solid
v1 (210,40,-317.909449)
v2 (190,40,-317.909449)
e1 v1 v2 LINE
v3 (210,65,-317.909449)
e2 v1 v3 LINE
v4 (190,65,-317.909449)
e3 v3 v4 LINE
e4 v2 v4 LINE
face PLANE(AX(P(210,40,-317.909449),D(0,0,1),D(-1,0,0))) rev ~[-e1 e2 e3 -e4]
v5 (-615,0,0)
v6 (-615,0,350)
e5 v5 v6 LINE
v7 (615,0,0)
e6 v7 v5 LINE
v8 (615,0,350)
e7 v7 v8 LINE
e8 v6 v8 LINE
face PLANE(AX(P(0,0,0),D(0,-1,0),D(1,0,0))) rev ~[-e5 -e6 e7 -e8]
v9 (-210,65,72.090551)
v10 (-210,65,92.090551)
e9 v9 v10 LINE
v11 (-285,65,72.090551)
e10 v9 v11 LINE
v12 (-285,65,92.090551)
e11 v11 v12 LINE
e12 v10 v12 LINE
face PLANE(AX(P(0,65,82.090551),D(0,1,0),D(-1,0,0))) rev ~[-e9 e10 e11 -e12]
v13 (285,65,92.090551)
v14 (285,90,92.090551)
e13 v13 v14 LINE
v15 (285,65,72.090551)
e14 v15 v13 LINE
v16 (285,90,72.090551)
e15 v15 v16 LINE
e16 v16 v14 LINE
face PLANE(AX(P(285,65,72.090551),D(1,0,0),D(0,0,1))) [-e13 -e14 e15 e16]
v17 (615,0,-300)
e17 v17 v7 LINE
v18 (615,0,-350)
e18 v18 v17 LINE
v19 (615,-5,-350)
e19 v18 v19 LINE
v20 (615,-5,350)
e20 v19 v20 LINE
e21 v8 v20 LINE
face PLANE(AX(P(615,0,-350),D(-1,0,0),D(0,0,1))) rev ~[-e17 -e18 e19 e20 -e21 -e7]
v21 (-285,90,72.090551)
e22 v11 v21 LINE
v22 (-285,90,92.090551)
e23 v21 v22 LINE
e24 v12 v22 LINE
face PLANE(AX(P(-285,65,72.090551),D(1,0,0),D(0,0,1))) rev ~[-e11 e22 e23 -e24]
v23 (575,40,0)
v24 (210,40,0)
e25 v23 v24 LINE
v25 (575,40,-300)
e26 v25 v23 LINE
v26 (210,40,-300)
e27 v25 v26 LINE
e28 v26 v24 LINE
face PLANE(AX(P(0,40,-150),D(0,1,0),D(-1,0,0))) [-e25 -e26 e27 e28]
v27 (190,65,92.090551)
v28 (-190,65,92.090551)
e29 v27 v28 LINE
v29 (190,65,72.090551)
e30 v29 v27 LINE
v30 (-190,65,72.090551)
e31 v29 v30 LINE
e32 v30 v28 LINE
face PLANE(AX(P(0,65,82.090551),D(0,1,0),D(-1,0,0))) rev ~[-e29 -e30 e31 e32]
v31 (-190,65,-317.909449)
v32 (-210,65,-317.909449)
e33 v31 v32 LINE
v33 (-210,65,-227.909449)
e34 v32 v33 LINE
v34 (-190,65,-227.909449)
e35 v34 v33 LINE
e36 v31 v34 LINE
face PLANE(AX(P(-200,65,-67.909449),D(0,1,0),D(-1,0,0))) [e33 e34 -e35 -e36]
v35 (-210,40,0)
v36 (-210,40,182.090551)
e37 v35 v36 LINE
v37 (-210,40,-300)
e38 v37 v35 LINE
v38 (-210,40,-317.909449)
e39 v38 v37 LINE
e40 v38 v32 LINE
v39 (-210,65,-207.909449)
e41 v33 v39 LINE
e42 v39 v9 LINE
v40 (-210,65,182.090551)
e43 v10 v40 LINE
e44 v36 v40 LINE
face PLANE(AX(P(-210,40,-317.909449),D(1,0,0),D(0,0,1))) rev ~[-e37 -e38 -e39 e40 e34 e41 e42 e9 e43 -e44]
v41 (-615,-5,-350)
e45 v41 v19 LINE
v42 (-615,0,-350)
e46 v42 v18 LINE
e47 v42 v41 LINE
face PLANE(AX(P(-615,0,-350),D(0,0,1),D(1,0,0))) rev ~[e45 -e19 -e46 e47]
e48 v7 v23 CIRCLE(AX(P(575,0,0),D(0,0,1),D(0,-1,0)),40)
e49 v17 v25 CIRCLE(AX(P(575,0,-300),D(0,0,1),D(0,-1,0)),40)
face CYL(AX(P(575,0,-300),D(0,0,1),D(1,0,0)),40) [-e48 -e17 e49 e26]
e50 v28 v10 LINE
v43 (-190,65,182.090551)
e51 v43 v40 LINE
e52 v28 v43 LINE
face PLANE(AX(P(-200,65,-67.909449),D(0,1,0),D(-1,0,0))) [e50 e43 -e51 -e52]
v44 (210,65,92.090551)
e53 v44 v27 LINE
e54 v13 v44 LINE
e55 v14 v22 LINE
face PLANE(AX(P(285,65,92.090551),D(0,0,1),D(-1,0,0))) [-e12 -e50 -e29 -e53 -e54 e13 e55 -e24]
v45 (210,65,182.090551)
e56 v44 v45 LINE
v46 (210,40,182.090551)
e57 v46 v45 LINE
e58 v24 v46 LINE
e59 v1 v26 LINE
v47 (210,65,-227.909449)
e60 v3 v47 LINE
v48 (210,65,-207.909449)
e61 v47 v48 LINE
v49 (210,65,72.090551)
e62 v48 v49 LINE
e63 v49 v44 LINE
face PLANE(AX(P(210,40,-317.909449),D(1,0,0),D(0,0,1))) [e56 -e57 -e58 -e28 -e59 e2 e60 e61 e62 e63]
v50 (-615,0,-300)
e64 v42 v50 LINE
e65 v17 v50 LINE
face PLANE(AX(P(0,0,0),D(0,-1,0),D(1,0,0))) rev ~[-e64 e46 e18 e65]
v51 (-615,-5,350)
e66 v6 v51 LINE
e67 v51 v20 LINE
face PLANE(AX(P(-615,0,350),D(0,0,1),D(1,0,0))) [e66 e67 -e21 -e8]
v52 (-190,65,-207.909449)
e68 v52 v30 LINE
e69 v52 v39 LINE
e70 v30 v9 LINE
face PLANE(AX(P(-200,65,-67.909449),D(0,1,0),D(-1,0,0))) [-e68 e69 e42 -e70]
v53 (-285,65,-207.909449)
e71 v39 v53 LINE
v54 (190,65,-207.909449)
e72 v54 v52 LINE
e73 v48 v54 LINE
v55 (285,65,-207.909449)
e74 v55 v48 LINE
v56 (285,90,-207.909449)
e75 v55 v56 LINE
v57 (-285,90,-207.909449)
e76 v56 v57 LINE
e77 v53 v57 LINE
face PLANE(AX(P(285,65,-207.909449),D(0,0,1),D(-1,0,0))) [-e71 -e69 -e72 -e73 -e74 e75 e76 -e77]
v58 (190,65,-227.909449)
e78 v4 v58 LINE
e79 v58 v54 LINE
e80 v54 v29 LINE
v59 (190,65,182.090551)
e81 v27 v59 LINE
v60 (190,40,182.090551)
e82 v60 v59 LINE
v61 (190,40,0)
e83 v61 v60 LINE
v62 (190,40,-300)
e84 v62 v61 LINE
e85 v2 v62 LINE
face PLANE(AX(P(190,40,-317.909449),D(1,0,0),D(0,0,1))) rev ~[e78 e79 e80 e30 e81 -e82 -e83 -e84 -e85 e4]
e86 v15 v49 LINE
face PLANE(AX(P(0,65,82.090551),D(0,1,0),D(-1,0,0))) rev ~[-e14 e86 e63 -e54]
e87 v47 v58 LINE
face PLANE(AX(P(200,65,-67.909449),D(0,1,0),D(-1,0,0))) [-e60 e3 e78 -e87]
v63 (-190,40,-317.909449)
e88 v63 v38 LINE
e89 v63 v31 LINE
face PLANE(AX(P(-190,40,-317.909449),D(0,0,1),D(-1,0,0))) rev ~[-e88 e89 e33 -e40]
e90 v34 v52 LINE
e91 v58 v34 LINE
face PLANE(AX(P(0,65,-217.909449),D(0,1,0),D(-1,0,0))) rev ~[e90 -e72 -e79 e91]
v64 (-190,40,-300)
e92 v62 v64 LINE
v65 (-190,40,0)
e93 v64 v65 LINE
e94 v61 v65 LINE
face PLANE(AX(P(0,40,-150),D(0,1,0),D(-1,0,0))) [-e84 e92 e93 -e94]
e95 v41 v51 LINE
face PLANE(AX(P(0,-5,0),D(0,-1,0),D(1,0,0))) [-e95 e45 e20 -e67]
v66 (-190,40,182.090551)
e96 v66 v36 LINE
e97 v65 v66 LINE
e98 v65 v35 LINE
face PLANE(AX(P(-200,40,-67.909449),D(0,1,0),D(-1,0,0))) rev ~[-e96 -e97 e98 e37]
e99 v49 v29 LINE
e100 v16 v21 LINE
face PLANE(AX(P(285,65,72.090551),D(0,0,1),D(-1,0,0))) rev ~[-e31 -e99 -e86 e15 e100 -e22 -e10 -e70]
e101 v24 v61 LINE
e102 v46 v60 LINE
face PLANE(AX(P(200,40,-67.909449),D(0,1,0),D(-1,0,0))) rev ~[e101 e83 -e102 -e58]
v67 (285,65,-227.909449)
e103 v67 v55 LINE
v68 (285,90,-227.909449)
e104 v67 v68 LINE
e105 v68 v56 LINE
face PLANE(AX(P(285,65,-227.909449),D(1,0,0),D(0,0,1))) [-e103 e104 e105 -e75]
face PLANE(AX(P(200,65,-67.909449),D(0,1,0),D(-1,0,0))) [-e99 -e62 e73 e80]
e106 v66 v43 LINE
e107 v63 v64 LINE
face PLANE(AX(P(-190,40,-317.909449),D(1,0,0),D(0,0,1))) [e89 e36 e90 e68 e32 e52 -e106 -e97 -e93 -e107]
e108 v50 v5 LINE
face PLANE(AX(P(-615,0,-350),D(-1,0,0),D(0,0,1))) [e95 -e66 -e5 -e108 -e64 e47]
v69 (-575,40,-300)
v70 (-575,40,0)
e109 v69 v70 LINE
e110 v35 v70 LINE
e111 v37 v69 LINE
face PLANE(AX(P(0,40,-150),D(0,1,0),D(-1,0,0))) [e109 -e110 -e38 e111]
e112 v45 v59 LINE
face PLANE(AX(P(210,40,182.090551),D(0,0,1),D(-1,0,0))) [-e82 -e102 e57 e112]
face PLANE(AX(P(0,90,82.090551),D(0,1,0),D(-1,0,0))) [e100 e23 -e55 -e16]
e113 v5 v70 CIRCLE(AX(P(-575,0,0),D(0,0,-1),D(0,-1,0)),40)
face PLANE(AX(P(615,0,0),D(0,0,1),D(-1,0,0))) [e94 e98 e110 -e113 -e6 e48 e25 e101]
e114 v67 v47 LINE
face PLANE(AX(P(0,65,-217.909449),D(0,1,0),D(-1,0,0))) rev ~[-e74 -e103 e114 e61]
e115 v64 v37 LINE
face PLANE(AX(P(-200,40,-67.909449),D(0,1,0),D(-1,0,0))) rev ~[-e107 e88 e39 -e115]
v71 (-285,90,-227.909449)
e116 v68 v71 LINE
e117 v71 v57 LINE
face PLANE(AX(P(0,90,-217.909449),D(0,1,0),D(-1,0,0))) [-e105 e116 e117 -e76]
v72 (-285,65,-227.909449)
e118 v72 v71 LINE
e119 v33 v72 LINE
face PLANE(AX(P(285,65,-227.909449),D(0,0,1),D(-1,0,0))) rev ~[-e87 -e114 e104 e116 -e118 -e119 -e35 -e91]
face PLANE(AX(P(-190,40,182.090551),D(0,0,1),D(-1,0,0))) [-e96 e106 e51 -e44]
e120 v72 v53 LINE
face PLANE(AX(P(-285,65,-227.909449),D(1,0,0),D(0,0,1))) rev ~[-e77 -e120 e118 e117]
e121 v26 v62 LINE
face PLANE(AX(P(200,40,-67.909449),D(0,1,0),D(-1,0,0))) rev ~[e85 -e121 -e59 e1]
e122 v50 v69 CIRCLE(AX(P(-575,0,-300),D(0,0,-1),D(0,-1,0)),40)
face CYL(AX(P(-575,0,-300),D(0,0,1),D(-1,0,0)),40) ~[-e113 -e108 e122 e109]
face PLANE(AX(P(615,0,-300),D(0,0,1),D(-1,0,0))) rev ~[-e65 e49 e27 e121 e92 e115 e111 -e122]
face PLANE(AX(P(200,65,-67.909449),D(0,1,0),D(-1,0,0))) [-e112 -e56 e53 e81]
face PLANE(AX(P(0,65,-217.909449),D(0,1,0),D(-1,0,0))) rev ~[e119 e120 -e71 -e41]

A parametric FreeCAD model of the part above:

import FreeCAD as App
import Part
import Sketcher
Q = App.Units.Quantity


def edges_at(feature, points):
    """Names of the edges that pass closest to the given points."""
    edges = feature.Shape.Edges
    near = lambda p: min(range(len(edges)), key=lambda i: edges[i].distToShape(Part.Vertex(*p))[0])
    return sorted({f"Edge{near(p) + 1}" for p in points})


def add_polygon(sketch, points):
    """Adds a closed chain of lines whose ends are joined by coincident constraints."""
    first, n = sketch.GeometryCount, len(points)
    for a, b in zip(points, points[1:] + points[:1]):
        sketch.addGeometry(Part.LineSegment(App.Vector(*a, 0), App.Vector(*b, 0)), False)
    for i in range(n):
        sketch.addConstraint(Sketcher.Constraint("Coincident", first + i, 2, first + (i + 1) % n, 1))

doc = App.newDocument("Part")
body = doc.addObject("PartDesign::Body", "Body")

# Sketch on XZ plane
sketch1 = body.newObject("Sketcher::SketchObject", "Sketch")
sketch1.AttachmentSupport = (doc.getObject("XZ_Plane"), [""])
sketch1.MapMode = "FlatFace"
add_polygon(sketch1, [(-615, 350), (-615, -350), (615, -350), (615, 350)])  # lines 0-3
sketch1.addConstraint(Sketcher.Constraint("Vertical", 0))
sketch1.addConstraint(Sketcher.Constraint("Horizontal", 1))
sketch1.addConstraint(Sketcher.Constraint("Vertical", 2))
sketch1.addConstraint(Sketcher.Constraint("Horizontal", 3))
sketch1.addConstraint(Sketcher.Constraint("Symmetric", 0, 2, 2, 2, -1, 1))
sketch1.addConstraint(Sketcher.Constraint("DistanceX", 1, 1, 1, 2, Q("1230 mm")))
sketch1.addConstraint(Sketcher.Constraint("DistanceY", 0, 2, 0, 1, Q("700 mm")))
pad1 = body.newObject("PartDesign::Pad", "Pad")
pad1.Profile = sketch1
pad1.Length = 5

# Sketch on XZ plane
sketch2 = body.newObject("Sketcher::SketchObject", "Sketch001")
sketch2.AttachmentSupport = (doc.getObject("XZ_Plane"), [""])
sketch2.MapMode = "FlatFace"
add_polygon(sketch2, [(615, 0), (615, -300), (-615, -300), (-615, 0)])  # lines 0-3
sketch2.addConstraint(Sketcher.Constraint("Vertical", 0))
sketch2.addConstraint(Sketcher.Constraint("Horizontal", 1))
sketch2.addConstraint(Sketcher.Constraint("Vertical", 2))
sketch2.addConstraint(Sketcher.Constraint("Horizontal", 3))
sketch2.addConstraint(Sketcher.Constraint("Symmetric", 2, 2, 3, 2, -1, 1))
sketch2.addConstraint(Sketcher.Constraint("DistanceX", 1, 2, 1, 1, Q("1230 mm")))
sketch2.addConstraint(Sketcher.Constraint("DistanceY", 0, 2, 0, 1, Q("300 mm")))
pad2 = body.newObject("PartDesign::Pad", "Pad001")
pad2.Profile = sketch2
pad2.Length = 40
pad2.Reversed = True
doc.recompute()

fillet = body.newObject("PartDesign::Fillet", "Fillet")
fillet.Base = (pad2, edges_at(pad2, [(615, 40, -150), (-615, 40, -150)]))
fillet.Radius = 40

# Sketch on XZ plane
sketch3 = body.newObject("Sketcher::SketchObject", "Sketch002")
sketch3.AttachmentSupport = (doc.getObject("XZ_Plane"), [""])
sketch3.MapMode = "FlatFace"
sketch3.AttachmentOffset = App.Placement(App.Vector(0, 0, -40), App.Rotation())
add_polygon(sketch3, [(210, 182), (210, -318), (190, -318), (190, 182)])  # lines 0-3
add_polygon(sketch3, [(-190, 182), (-190, -318), (-210, -318), (-210, 182)])  # lines 4-7
sketch3.addConstraint(Sketcher.Constraint("Vertical", 0))
sketch3.addConstraint(Sketcher.Constraint("Horizontal", 1))
sketch3.addConstraint(Sketcher.Constraint("Vertical", 2))
sketch3.addConstraint(Sketcher.Constraint("Horizontal", 3))
sketch3.addConstraint(Sketcher.Constraint("Vertical", 4))
sketch3.addConstraint(Sketcher.Constraint("Horizontal", 5))
sketch3.addConstraint(Sketcher.Constraint("Vertical", 6))
sketch3.addConstraint(Sketcher.Constraint("Horizontal", 7))
sketch3.addConstraint(Sketcher.Constraint("Symmetric", 1, 2, 4, 2, -2))
sketch3.addConstraint(Sketcher.Constraint("Symmetric", 3, 2, 6, 2, -2))
sketch3.addConstraint(Sketcher.Constraint("DistanceX", 1, 2, 1, 1, Q("20 mm")))
sketch3.addConstraint(Sketcher.Constraint("DistanceY", 0, 2, 0, 1, Q("500 mm")))
sketch3.addConstraint(Sketcher.Constraint("DistanceX", -1, 1, 0, 2, Q("210 mm")))
sketch3.addConstraint(Sketcher.Constraint("DistanceY", 0, 2, -1, 1, Q("317.909449 mm")))
pad3 = body.newObject("PartDesign::Pad", "Pad002")
pad3.Profile = sketch3
pad3.Length = 25
pad3.Reversed = True

# Sketch on XZ plane
sketch4 = body.newObject("Sketcher::SketchObject", "Sketch003")
sketch4.AttachmentSupport = (doc.getObject("XZ_Plane"), [""])
sketch4.MapMode = "FlatFace"
sketch4.AttachmentOffset = App.Placement(App.Vector(0, 0, -65), App.Rotation())
add_polygon(sketch4, [(285, 92), (285, 72), (-285, 72), (-285, 92)])  # lines 0-3
add_polygon(sketch4, [(285, -208), (285, -228), (-285, -228), (-285, -208)])  # lines 4-7
sketch4.addConstraint(Sketcher.Constraint("Vertical", 0))
sketch4.addConstraint(Sketcher.Constraint("Horizontal", 1))
sketch4.addConstraint(Sketcher.Constraint("Vertical", 2))
sketch4.addConstraint(Sketcher.Constraint("Horizontal", 3))
sketch4.addConstraint(Sketcher.Constraint("Vertical", 4))
sketch4.addConstraint(Sketcher.Constraint("Horizontal", 5))
sketch4.addConstraint(Sketcher.Constraint("Vertical", 6))
sketch4.addConstraint(Sketcher.Constraint("Horizontal", 7))
sketch4.addConstraint(Sketcher.Constraint("Vertical", 3, 2, 4, 2))
sketch4.addConstraint(Sketcher.Constraint("Vertical", 2, 2, 5, 2))
sketch4.addConstraint(Sketcher.Constraint("Equal", 2, 4))
sketch4.addConstraint(Sketcher.Constraint("DistanceX", 1, 2, 1, 1, Q("570 mm")))
sketch4.addConstraint(Sketcher.Constraint("DistanceY", 0, 2, 0, 1, Q("20 mm")))
sketch4.addConstraint(Sketcher.Constraint("DistanceX", -1, 1, 0, 2, Q("285 mm")))
sketch4.addConstraint(Sketcher.Constraint("DistanceY", 4, 2, 0, 2, Q("300 mm")))
sketch4.addConstraint(Sketcher.Constraint("DistanceY", -1, 1, 0, 2, Q("72.090551 mm")))
pad4 = body.newObject("PartDesign::Pad", "Pad003")
pad4.Profile = sketch4
pad4.Length = 25
pad4.Reversed = True

doc.recompute()
